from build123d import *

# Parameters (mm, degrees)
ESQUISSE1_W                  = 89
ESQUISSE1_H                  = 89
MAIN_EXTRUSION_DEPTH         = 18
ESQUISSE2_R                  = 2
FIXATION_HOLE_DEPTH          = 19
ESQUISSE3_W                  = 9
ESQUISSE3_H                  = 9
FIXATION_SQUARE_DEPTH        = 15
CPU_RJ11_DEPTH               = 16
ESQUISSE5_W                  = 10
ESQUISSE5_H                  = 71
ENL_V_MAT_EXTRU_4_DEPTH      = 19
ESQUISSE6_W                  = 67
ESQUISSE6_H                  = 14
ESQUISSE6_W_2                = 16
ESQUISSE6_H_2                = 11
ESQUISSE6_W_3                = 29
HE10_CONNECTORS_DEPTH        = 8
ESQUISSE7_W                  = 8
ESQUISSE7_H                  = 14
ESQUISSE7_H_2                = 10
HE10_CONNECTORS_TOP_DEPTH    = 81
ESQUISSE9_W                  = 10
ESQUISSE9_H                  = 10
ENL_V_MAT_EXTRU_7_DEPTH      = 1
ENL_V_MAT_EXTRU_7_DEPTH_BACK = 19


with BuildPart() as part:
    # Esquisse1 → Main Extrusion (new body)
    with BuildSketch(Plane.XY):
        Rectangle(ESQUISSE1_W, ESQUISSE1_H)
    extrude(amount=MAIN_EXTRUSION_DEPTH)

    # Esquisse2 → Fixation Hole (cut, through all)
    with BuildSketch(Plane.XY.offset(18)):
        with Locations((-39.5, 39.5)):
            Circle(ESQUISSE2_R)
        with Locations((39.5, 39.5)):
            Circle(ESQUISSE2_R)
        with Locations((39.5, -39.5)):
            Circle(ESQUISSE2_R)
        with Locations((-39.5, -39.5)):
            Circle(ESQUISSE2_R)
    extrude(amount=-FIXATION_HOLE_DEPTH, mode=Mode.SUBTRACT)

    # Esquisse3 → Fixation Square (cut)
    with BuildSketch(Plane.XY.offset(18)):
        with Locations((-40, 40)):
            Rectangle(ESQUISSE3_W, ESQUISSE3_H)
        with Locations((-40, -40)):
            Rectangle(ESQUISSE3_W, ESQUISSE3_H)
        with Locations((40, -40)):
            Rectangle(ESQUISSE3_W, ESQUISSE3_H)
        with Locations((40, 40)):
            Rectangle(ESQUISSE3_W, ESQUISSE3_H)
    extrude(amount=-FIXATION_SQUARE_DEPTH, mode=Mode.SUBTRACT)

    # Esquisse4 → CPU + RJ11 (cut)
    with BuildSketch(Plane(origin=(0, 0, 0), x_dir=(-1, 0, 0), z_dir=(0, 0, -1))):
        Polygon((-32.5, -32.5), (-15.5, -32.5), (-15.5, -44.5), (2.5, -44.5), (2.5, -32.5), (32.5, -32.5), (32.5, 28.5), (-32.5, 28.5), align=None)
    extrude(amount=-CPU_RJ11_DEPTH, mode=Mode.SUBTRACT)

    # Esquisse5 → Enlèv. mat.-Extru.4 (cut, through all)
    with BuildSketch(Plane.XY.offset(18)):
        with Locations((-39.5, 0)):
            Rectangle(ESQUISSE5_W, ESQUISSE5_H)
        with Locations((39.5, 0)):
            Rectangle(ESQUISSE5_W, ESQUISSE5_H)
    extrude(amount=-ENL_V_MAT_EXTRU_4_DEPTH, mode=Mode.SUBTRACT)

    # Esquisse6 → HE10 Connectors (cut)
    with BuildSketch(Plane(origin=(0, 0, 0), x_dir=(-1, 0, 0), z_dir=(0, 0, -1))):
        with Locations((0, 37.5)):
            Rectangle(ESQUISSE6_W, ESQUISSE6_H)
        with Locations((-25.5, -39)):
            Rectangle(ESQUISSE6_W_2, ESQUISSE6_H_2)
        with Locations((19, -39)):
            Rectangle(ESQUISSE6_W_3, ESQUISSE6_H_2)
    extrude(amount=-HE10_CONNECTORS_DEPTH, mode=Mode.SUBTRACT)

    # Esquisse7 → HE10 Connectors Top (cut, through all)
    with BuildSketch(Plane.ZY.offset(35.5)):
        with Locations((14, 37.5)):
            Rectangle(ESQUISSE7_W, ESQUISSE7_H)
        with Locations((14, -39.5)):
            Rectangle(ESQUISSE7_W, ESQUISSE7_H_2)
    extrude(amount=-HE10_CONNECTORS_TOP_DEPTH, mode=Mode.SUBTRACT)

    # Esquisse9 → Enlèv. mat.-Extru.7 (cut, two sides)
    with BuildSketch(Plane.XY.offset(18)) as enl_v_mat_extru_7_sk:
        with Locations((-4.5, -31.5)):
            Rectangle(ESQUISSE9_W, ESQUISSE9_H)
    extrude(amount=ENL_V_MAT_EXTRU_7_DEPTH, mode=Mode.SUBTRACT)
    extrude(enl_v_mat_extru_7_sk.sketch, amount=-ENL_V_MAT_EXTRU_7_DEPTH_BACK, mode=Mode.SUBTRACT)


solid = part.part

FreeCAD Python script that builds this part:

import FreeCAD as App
import Part
import Sketcher

V = App.Vector
Q = App.Units.Quantity


def add_polygon(sketch, points):
    """Adds a closed chain of lines whose ends are joined by coincident constraints."""
    first, n = sketch.GeometryCount, len(points)
    for a, b in zip(points, points[1:] + points[:1]):
        sketch.addGeometry(Part.LineSegment(App.Vector(*a, 0), App.Vector(*b, 0)), False)
    for i in range(n):
        sketch.addConstraint(Sketcher.Constraint("Coincident", first + i, 2, first + (i + 1) % n, 1))

doc = App.newDocument("Part")
body = doc.addObject("PartDesign::Body", "Body")

# Sketch on XY plane
sketch1 = body.newObject("Sketcher::SketchObject", "Sketch")
sketch1.AttachmentSupport = (doc.getObject("XY_Plane"), [""])
sketch1.MapMode = "FlatFace"
add_polygon(sketch1, [(-44, 44), (-44, -44), (44, -44), (44, 44)])  # lines 0-3
sketch1.addConstraint(Sketcher.Constraint("Vertical", 0))
sketch1.addConstraint(Sketcher.Constraint("Horizontal", 1))
sketch1.addConstraint(Sketcher.Constraint("Vertical", 2))
sketch1.addConstraint(Sketcher.Constraint("Horizontal", 3))
sketch1.addConstraint(Sketcher.Constraint("Symmetric", 0, 2, 2, 2, -1, 1))
sketch1.addConstraint(Sketcher.Constraint("Equal", 3, 0))
sketch1.addConstraint(Sketcher.Constraint("DistanceX", 1, 1, 1, 2, Q("89 mm")))
pad1 = body.newObject("PartDesign::Pad", "Pad")
pad1.Profile = sketch1
pad1.Length = 18

# Sketch on XY plane
sketch2 = body.newObject("Sketcher::SketchObject", "Sketch001")
sketch2.AttachmentSupport = (doc.getObject("XY_Plane"), [""])
sketch2.MapMode = "FlatFace"
sketch2.AttachmentOffset = App.Placement(V(0, 0, 18), App.Rotation())
sketch2.addGeometry(Part.Circle(V(-39.5, 39.5, 0), V(0, 0, 1), 2), False)
sketch2.addGeometry(Part.Circle(V(39.5, 39.5, 0), V(0, 0, 1), 2), False)
sketch2.addGeometry(Part.Circle(V(39.5, -39.5, 0), V(0, 0, 1), 2), False)
sketch2.addGeometry(Part.Circle(V(-39.5, -39.5, 0), V(0, 0, 1), 2), False)
sketch2.addConstraint(Sketcher.Constraint("Equal", 0, 1))
sketch2.addConstraint(Sketcher.Constraint("Equal", 1, 2))
sketch2.addConstraint(Sketcher.Constraint("Equal", 2, 3))
sketch2.addConstraint(Sketcher.Constraint("Symmetric", 0, 3, 2, 3, -1, 1))
sketch2.addConstraint(Sketcher.Constraint("Symmetric", 1, 3, 3, 3, -1, 1))
sketch2.addConstraint(Sketcher.Constraint("Symmetric", 0, 3, 1, 3, -2))
sketch2.addConstraint(Sketcher.Constraint("Diameter", 0, Q("4 mm")))
sketch2.addConstraint(Sketcher.Constraint("DistanceX", 0, 3, 1, 3, Q("79 mm")))
sketch2.addConstraint(Sketcher.Constraint("DistanceY", 2, 3, 1, 3, Q("79 mm")))
pocket1 = body.newObject("PartDesign::Pocket", "Pocket")
pocket1.Profile = sketch2
pocket1.Type = "ThroughAll"

# Sketch on XY plane
sketch3 = body.newObject("Sketcher::SketchObject", "Sketch002")
sketch3.AttachmentSupport = (doc.getObject("XY_Plane"), [""])
sketch3.MapMode = "FlatFace"
sketch3.AttachmentOffset = App.Placement(V(0, 0, 18), App.Rotation())
add_polygon(sketch3, [(-44, 44), (-44, 36), (-36, 36), (-36, 44)])  # lines 0-3
add_polygon(sketch3, [(-44, -36), (-44, -44), (-36, -44), (-36, -36)])  # lines 4-7
add_polygon(sketch3, [(36, -36), (36, -44), (44, -44), (44, -36)])  # lines 8-11
add_polygon(sketch3, [(36, 44), (36, 36), (44, 36), (44, 44)])  # lines 12-15
sketch3.addConstraint(Sketcher.Constraint("Vertical", 0))
sketch3.addConstraint(Sketcher.Constraint("Horizontal", 1))
sketch3.addConstraint(Sketcher.Constraint("Vertical", 2))
sketch3.addConstraint(Sketcher.Constraint("Horizontal", 3))
sketch3.addConstraint(Sketcher.Constraint("Vertical", 4))
sketch3.addConstraint(Sketcher.Constraint("Horizontal", 5))
sketch3.addConstraint(Sketcher.Constraint("Vertical", 6))
sketch3.addConstraint(Sketcher.Constraint("Horizontal", 7))
sketch3.addConstraint(Sketcher.Constraint("Vertical", 8))
sketch3.addConstraint(Sketcher.Constraint("Horizontal", 9))
sketch3.addConstraint(Sketcher.Constraint("Vertical", 10))
sketch3.addConstraint(Sketcher.Constraint("Horizontal", 11))
sketch3.addConstraint(Sketcher.Constraint("Vertical", 12))
sketch3.addConstraint(Sketcher.Constraint("Horizontal", 13))
sketch3.addConstraint(Sketcher.Constraint("Vertical", 14))
sketch3.addConstraint(Sketcher.Constraint("Horizontal", 15))
sketch3.addConstraint(Sketcher.Constraint("Symmetric", 2, 2, 8, 2, -1, 1))
sketch3.addConstraint(Sketcher.Constraint("Symmetric", 0, 2, 10, 2, -1, 1))
sketch3.addConstraint(Sketcher.Constraint("Symmetric", 6, 2, 12, 2, -1, 1))
sketch3.addConstraint(Sketcher.Constraint("Symmetric", 4, 2, 14, 2, -1, 1))
sketch3.addConstraint(Sketcher.Constraint("Symmetric", 5, 2, 8, 2, -2))
sketch3.addConstraint(Sketcher.Constraint("Symmetric", 7, 2, 10, 2, -2))
sketch3.addConstraint(Sketcher.Constraint("Equal", 15, 0))
sketch3.addConstraint(Sketcher.Constraint("DistanceX", 1, 1, 1, 2, Q("9 mm")))
sketch3.addConstraint(Sketcher.Constraint("DistanceY", 4, 2, 0, 2, Q("80 mm")))
sketch3.addConstraint(Sketcher.Constraint("DistanceX", 5, 2, 8, 2, Q("71 mm")))
pocket2 = body.newObject("PartDesign::Pocket", "Pocket001")
pocket2.Profile = sketch3
pocket2.Length = 15

# Sketch on XY plane
sketch4 = body.newObject("Sketcher::SketchObject", "Sketch003")
sketch4.AttachmentSupport = (doc.getObject("XY_Plane"), [""])
sketch4.MapMode = "FlatFace"
add_polygon(sketch4, [(32, -32), (16, -32), (16, -44), (-2, -44), (-2, -32), (-32, -32), (-32, 28), (32, 28)])  # lines 0-7
sketch4.addConstraint(Sketcher.Constraint("Horizontal", 0))
sketch4.addConstraint(Sketcher.Constraint("Vertical", 1))
sketch4.addConstraint(Sketcher.Constraint("Horizontal", 2))
sketch4.addConstraint(Sketcher.Constraint("Vertical", 3))
sketch4.addConstraint(Sketcher.Constraint("Horizontal", 4))
sketch4.addConstraint(Sketcher.Constraint("Vertical", 5))
sketch4.addConstraint(Sketcher.Constraint("Horizontal", 6))
sketch4.addConstraint(Sketcher.Constraint("Vertical", 7))
sketch4.addConstraint(Sketcher.Constraint("Symmetric", 4, 2, 7, 2, -2))
sketch4.addConstraint(Sketcher.Constraint("DistanceX", 0, 2, 0, 1, Q("17 mm")))
sketch4.addConstraint(Sketcher.Constraint("DistanceX", 2, 2, 2, 1, Q("18 mm")))
sketch4.addConstraint(Sketcher.Constraint("DistanceX", 4, 2, 4, 1, Q("30 mm")))
sketch4.addConstraint(Sketcher.Constraint("DistanceY", 1, 2, 1, 1, Q("12 mm")))
sketch4.addConstraint(Sketcher.Constraint("DistanceY", 5, 1, 5, 2, Q("61 mm")))
sketch4.addConstraint(Sketcher.Constraint("DistanceY", 0, 2, -1, 1, Q("32.5 mm")))
pocket3 = body.newObject("PartDesign::Pocket", "Pocket002")
pocket3.Profile = sketch4
pocket3.Length = 16
pocket3.Reversed = True

# Sketch on XY plane
sketch5 = body.newObject("Sketcher::SketchObject", "Sketch004")
sketch5.AttachmentSupport = (doc.getObject("XY_Plane"), [""])
sketch5.MapMode = "FlatFace"
sketch5.AttachmentOffset = App.Placement(V(0, 0, 18), App.Rotation())
add_polygon(sketch5, [(-44, 36), (-44, -36), (-34, -36), (-34, 36)])  # lines 0-3
add_polygon(sketch5, [(34, 36), (34, -36), (44, -36), (44, 36)])  # lines 4-7
sketch5.addConstraint(Sketcher.Constraint("Vertical", 0))
sketch5.addConstraint(Sketcher.Constraint("Horizontal", 1))
sketch5.addConstraint(Sketcher.Constraint("Vertical", 2))
sketch5.addConstraint(Sketcher.Constraint("Horizontal", 3))
sketch5.addConstraint(Sketcher.Constraint("Vertical", 4))
sketch5.addConstraint(Sketcher.Constraint("Horizontal", 5))
sketch5.addConstraint(Sketcher.Constraint("Vertical", 6))
sketch5.addConstraint(Sketcher.Constraint("Horizontal", 7))
sketch5.addConstraint(Sketcher.Constraint("Symmetric", 2, 2, 4, 2, -1, 1))
sketch5.addConstraint(Sketcher.Constraint("Symmetric", 0, 2, 6, 2, -1, 1))
sketch5.addConstraint(Sketcher.Constraint("Horizontal", 1, 2, 4, 2))
sketch5.addConstraint(Sketcher.Constraint("DistanceX", 1, 1, 1, 2, Q("10 mm")))
sketch5.addConstraint(Sketcher.Constraint("DistanceY", 0, 2, 0, 1, Q("71 mm")))
sketch5.addConstraint(Sketcher.Constraint("DistanceX", 1, 2, 4, 2, Q("69 mm")))
pocket4 = body.newObject("PartDesign::Pocket", "Pocket003")
pocket4.Profile = sketch5
pocket4.Type = "ThroughAll"

# Sketch on XY plane
sketch6 = body.newObject("Sketcher::SketchObject", "Sketch005")
sketch6.AttachmentSupport = (doc.getObject("XY_Plane"), [""])
sketch6.MapMode = "FlatFace"
add_polygon(sketch6, [(34, 44), (34, 30), (-34, 30), (-34, 44)])  # lines 0-3
add_polygon(sketch6, [(34, -34), (34, -44), (18, -44), (18, -34)])  # lines 4-7
add_polygon(sketch6, [(-4, -34), (-4, -44), (-34, -44), (-34, -34)])  # lines 8-11
sketch6.addConstraint(Sketcher.Constraint("Vertical", 0))
sketch6.addConstraint(Sketcher.Constraint("Horizontal", 1))
sketch6.addConstraint(Sketcher.Constraint("Vertical", 2))
sketch6.addConstraint(Sketcher.Constraint("Horizontal", 3))
sketch6.addConstraint(Sketcher.Constraint("Vertical", 4))
sketch6.addConstraint(Sketcher.Constraint("Horizontal", 5))
sketch6.addConstraint(Sketcher.Constraint("Vertical", 6))
sketch6.addConstraint(Sketcher.Constraint("Horizontal", 7))
sketch6.addConstraint(Sketcher.Constraint("Vertical", 8))
sketch6.addConstraint(Sketcher.Constraint("Horizontal", 9))
sketch6.addConstraint(Sketcher.Constraint("Vertical", 10))
sketch6.addConstraint(Sketcher.Constraint("Horizontal", 11))
sketch6.addConstraint(Sketcher.Constraint("Symmetric", 2, 2, 4, 2, -1, 1))
sketch6.addConstraint(Sketcher.Constraint("Symmetric", 3, 2, 9, 2, -1, 1))
sketch6.addConstraint(Sketcher.Constraint("Symmetric", 7, 2, 10, 2, -2))
sketch6.addConstraint(Sketcher.Constraint("DistanceX", 1, 2, 1, 1, Q("67 mm")))
sketch6.addConstraint(Sketcher.Constraint("DistanceX", 5, 2, 5, 1, Q("16 mm")))
sketch6.addConstraint(Sketcher.Constraint("DistanceX", 9, 2, 9, 1, Q("29 mm")))
sketch6.addConstraint(Sketcher.Constraint("DistanceY", 0, 2, 0, 1, Q("14 mm")))
sketch6.addConstraint(Sketcher.Constraint("DistanceY", 4, 2, 4, 1, Q("11 mm")))
sketch6.addConstraint(Sketcher.Constraint("DistanceY", 4, 2, 0, 2, Q("75 mm")))
pocket5 = body.newObject("PartDesign::Pocket", "Pocket004")
pocket5.Profile = sketch6
pocket5.Length = 8
pocket5.Reversed = True

# Sketch on YZ plane
sketch7 = body.newObject("Sketcher::SketchObject", "Sketch006")
sketch7.AttachmentSupport = (doc.getObject("YZ_Plane"), [""])
sketch7.MapMode = "FlatFace"
sketch7.AttachmentOffset = App.Placement(V(0, 0, -35.5), App.Rotation())
add_polygon(sketch7, [(44, 10), (30, 10), (30, 18), (44, 18)])  # lines 0-3
add_polygon(sketch7, [(-34, 10), (-44, 10), (-44, 18), (-34, 18)])  # lines 4-7
sketch7.addConstraint(Sketcher.Constraint("Horizontal", 0))
sketch7.addConstraint(Sketcher.Constraint("Vertical", 1))
sketch7.addConstraint(Sketcher.Constraint("Horizontal", 2))
sketch7.addConstraint(Sketcher.Constraint("Vertical", 3))
sketch7.addConstraint(Sketcher.Constraint("Horizontal", 4))
sketch7.addConstraint(Sketcher.Constraint("Vertical", 5))
sketch7.addConstraint(Sketcher.Constraint("Horizontal", 6))
sketch7.addConstraint(Sketcher.Constraint("Vertical", 7))
sketch7.addConstraint(Sketcher.Constraint("Symmetric", 3, 2, 4, 2, -2))
sketch7.addConstraint(Sketcher.Constraint("Horizontal", 2, 2, 5, 2))
sketch7.addConstraint(Sketcher.Constraint("DistanceX", 0, 2, 0, 1, Q("14 mm")))
sketch7.addConstraint(Sketcher.Constraint("DistanceX", 4, 2, 4, 1, Q("10 mm")))
sketch7.addConstraint(Sketcher.Constraint("DistanceY", 1, 1, 1, 2, Q("8 mm")))
sketch7.addConstraint(Sketcher.Constraint("DistanceY", -1, 1, 0, 2, Q("10 mm")))
sketch7.addConstraint(Sketcher.Constraint("DistanceX", 4, 2, 0, 2, Q("75 mm")))
pocket6 = body.newObject("PartDesign::Pocket", "Pocket005")
pocket6.Profile = sketch7
pocket6.Type = "ThroughAll"
pocket6.Reversed = True

# Sketch on XY plane
sketch8 = body.newObject("Sketcher::SketchObject", "Sketch007")
sketch8.AttachmentSupport = (doc.getObject("XY_Plane"), [""])
sketch8.MapMode = "FlatFace"
sketch8.AttachmentOffset = App.Placement(V(0, 0, 18), App.Rotation())
add_polygon(sketch8, [(-10, -26), (-10, -36), (0, -36), (0, -26)])  # lines 0-3
sketch8.addConstraint(Sketcher.Constraint("Vertical", 0))
sketch8.addConstraint(Sketcher.Constraint("Horizontal", 1))
sketch8.addConstraint(Sketcher.Constraint("Vertical", 2))
sketch8.addConstraint(Sketcher.Constraint("Horizontal", 3))
sketch8.addConstraint(Sketcher.Constraint("Equal", 3, 0))
sketch8.addConstraint(Sketcher.Constraint("DistanceX", 1, 1, 1, 2, Q("10 mm")))
sketch8.addConstraint(Sketcher.Constraint("DistanceX", 0, 2, -1, 1, Q("9.5 mm")))
sketch8.addConstraint(Sketcher.Constraint("DistanceY", 0, 2, -1, 1, Q("36.5 mm")))
pocket7 = body.newObject("PartDesign::Pocket", "Pocket006")
pocket7.Profile = sketch8
pocket7.Type = "ThroughAll"
pocket7.Midplane = True

doc.recompute()
